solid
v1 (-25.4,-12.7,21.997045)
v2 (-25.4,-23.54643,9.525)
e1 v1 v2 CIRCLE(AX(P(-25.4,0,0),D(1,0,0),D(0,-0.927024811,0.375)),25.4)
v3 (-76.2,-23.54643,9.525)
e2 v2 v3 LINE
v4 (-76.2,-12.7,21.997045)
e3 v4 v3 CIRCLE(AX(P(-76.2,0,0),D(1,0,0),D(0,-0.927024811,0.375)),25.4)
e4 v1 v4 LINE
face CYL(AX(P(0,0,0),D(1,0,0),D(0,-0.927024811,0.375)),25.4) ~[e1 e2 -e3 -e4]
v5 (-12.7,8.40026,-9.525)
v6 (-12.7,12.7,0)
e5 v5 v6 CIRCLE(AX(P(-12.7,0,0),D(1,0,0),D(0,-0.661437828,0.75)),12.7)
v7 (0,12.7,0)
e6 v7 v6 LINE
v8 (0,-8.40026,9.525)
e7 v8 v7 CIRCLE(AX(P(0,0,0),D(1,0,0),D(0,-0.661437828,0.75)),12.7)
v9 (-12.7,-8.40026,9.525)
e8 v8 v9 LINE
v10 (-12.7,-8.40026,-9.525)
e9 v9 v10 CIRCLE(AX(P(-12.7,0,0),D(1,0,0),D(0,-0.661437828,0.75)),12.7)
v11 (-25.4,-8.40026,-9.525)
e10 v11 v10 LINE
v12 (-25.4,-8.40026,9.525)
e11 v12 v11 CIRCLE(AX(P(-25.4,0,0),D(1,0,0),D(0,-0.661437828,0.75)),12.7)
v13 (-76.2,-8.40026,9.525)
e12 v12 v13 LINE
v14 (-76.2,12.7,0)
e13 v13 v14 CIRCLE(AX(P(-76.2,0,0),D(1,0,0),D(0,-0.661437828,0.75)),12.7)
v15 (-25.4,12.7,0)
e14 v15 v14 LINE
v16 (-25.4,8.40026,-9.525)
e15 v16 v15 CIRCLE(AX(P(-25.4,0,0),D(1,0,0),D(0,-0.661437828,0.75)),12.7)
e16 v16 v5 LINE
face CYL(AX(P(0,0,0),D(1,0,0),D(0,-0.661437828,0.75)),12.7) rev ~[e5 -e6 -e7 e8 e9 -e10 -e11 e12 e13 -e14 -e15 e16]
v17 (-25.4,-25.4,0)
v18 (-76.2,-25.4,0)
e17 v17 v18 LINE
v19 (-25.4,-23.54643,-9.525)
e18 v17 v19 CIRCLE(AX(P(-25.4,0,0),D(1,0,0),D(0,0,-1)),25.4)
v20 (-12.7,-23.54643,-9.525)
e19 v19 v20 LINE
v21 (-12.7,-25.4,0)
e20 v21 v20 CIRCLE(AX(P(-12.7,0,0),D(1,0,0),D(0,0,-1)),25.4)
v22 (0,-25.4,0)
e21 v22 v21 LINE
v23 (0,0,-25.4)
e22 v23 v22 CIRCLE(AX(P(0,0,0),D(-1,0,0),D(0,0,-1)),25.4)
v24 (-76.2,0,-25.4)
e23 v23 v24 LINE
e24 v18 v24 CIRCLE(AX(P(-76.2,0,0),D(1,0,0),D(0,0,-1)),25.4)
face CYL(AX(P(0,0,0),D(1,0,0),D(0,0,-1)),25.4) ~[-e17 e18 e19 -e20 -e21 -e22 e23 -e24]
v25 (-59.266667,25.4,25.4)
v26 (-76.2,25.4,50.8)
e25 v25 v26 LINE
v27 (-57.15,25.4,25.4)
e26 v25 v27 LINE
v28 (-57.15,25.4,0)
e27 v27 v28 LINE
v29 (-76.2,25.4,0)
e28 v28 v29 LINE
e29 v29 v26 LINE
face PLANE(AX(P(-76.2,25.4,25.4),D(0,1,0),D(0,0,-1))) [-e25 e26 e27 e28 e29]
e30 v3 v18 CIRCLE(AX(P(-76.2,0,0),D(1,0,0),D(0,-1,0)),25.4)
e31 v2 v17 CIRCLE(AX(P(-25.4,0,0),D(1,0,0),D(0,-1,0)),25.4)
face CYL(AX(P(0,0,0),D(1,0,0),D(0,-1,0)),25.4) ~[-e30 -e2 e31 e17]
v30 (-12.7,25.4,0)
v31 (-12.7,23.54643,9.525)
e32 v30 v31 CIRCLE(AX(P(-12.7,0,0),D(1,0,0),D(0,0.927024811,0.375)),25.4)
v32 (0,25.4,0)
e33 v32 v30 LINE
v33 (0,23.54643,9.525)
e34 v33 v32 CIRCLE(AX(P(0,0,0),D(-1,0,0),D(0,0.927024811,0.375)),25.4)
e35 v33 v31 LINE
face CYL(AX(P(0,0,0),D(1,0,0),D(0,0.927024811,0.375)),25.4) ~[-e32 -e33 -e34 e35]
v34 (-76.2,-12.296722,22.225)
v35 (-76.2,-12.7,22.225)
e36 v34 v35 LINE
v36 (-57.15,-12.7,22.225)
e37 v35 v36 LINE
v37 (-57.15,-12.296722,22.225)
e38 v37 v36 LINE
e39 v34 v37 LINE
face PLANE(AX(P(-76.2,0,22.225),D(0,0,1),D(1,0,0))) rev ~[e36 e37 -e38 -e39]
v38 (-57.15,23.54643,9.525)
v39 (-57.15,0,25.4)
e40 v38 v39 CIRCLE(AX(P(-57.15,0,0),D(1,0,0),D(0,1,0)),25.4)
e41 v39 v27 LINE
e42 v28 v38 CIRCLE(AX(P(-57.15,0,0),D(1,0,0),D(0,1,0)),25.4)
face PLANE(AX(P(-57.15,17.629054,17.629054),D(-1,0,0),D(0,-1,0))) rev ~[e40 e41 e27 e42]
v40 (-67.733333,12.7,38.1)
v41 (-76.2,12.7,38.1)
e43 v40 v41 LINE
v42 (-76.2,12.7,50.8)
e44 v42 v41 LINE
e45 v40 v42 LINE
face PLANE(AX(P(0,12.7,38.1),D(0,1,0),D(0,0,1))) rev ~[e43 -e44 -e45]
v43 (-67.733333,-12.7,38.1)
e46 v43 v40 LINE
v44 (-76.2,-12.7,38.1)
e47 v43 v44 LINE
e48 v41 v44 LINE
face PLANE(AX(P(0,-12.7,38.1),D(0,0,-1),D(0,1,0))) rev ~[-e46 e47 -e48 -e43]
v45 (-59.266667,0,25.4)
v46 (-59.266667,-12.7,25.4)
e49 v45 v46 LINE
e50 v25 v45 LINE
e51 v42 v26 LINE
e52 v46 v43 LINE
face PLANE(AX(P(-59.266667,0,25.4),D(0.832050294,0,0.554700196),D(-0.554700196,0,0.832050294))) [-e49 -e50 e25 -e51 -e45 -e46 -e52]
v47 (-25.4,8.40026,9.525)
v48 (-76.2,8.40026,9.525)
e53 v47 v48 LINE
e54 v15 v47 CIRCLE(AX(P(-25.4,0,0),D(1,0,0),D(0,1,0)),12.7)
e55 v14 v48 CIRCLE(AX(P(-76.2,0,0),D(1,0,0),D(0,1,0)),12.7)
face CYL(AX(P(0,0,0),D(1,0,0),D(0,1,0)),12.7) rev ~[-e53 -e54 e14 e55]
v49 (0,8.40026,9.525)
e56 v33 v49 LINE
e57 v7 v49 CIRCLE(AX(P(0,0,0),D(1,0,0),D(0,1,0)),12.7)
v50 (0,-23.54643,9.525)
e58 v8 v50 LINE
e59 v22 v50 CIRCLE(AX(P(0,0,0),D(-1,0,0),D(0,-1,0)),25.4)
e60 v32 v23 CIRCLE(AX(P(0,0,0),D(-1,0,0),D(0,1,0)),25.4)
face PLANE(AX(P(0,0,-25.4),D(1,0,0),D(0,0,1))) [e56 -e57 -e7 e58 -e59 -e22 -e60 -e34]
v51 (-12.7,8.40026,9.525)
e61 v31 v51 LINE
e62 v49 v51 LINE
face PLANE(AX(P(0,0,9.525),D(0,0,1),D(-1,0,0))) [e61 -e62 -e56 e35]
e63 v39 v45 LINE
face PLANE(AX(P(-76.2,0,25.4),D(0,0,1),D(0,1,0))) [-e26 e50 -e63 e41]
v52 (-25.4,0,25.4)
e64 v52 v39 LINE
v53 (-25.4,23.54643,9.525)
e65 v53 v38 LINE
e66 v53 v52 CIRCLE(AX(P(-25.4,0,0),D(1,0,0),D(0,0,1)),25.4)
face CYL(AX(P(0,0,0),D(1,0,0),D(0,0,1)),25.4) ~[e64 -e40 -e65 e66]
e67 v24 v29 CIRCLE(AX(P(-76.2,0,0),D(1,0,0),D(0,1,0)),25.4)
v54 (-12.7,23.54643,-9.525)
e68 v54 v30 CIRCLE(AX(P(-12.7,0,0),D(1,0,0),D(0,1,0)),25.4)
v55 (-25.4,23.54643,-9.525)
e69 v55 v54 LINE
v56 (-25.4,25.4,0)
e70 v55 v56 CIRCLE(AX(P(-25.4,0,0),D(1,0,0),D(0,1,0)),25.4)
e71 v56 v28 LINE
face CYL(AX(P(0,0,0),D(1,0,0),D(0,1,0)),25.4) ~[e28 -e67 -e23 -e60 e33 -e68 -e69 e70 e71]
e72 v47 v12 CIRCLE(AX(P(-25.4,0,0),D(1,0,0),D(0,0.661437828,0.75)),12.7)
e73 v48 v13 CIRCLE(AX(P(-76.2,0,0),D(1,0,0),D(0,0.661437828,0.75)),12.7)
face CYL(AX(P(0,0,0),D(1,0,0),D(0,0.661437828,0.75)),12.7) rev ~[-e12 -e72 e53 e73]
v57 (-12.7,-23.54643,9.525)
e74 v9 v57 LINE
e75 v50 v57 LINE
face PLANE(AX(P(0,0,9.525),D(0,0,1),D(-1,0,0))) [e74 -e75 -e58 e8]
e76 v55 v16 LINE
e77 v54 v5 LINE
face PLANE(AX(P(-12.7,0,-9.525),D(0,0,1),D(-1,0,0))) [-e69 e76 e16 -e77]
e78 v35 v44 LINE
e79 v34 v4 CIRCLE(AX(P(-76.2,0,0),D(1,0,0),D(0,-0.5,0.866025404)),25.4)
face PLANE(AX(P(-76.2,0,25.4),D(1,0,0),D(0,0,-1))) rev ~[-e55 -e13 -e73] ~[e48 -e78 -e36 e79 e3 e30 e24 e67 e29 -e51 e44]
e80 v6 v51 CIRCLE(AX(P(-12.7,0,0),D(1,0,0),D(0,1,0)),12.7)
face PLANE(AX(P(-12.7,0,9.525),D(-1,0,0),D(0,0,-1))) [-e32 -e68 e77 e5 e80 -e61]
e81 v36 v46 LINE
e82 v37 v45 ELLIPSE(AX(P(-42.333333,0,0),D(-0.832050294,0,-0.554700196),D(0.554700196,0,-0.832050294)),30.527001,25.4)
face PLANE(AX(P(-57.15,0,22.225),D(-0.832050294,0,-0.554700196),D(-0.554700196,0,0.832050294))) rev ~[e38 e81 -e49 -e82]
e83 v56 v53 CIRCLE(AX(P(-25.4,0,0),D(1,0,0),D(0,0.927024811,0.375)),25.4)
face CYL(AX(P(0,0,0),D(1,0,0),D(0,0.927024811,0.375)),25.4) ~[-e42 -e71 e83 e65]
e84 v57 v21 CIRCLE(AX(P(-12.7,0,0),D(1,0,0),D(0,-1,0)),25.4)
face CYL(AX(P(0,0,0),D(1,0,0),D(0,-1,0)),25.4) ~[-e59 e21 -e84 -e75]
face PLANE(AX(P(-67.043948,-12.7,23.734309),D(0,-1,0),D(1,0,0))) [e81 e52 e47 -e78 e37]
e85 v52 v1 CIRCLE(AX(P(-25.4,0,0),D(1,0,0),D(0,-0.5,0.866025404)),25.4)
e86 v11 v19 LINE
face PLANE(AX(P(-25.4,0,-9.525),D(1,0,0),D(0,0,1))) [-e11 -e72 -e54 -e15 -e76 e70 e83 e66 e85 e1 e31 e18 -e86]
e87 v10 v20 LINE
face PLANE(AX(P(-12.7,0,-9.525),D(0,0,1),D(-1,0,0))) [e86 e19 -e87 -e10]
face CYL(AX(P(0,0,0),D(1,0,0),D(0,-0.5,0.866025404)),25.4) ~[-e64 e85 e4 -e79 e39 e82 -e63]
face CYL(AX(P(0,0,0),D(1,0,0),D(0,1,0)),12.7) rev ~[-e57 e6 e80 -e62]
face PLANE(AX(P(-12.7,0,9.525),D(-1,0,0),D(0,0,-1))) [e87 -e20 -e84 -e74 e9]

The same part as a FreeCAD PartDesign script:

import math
import FreeCAD as App
import Part
import Sketcher
Q = App.Units.Quantity

doc = App.newDocument("Part")
body = doc.addObject("PartDesign::Body", "Body")
body.AllowCompound = True

# Sketch on XZ plane
sketch1 = doc.addObject("Sketcher::SketchObject", "Sketch")
body.addObject(sketch1)
sketch1.AttachmentSupport = (doc.XZ_Plane, [""])
sketch1.MapMode = "FlatFace"
sketch1.addGeometry([
    Part.LineSegment(App.Vector(0, -25.4, 0), App.Vector(0, 9.525, 0)),  # 0
    Part.LineSegment(App.Vector(0, 9.525, 0), App.Vector(-12.7, 9.525, 0)),  # 1
    Part.LineSegment(App.Vector(-12.7, 9.525, 0), App.Vector(-12.7, -9.525, 0)),  # 2
    Part.LineSegment(App.Vector(-12.7, -9.525, 0), App.Vector(-25.4, -9.525, 0)),  # 3
    Part.LineSegment(App.Vector(-25.4, -9.525, 0), App.Vector(-25.4, 25.4, 0)),  # 4
    Part.LineSegment(App.Vector(-25.4, 25.4, 0), App.Vector(-59.266667, 25.4, 0)),  # 5
    Part.LineSegment(App.Vector(-59.266667, 25.4, 0), App.Vector(-76.2, 50.8, 0)),  # 6
    Part.LineSegment(App.Vector(-76.2, 50.8, 0), App.Vector(-76.2, -25.4, 0)),  # 7
    Part.LineSegment(App.Vector(-76.2, -25.4, 0), App.Vector(0, -25.4, 0)),  # 8
], False)
sketch1.addConstraint([
    Sketcher.Constraint("Coincident", 0, 2, 1, 1),
    Sketcher.Constraint("Coincident", 1, 2, 2, 1),
    Sketcher.Constraint("Coincident", 2, 2, 3, 1),
    Sketcher.Constraint("Coincident", 3, 2, 4, 1),
    Sketcher.Constraint("Coincident", 4, 2, 5, 1),
    Sketcher.Constraint("Coincident", 5, 2, 6, 1),
    Sketcher.Constraint("Coincident", 6, 2, 7, 1),
    Sketcher.Constraint("Coincident", 7, 2, 8, 1),
    Sketcher.Constraint("Coincident", 8, 2, 0, 1),
    Sketcher.Constraint("Vertical", 0),
    Sketcher.Constraint("Horizontal", 1),
    Sketcher.Constraint("Vertical", 2),
    Sketcher.Constraint("Horizontal", 3),
    Sketcher.Constraint("Vertical", 4),
    Sketcher.Constraint("Horizontal", 5),
    Sketcher.Constraint("Vertical", 7),
    Sketcher.Constraint("Horizontal", 8),
    Sketcher.Constraint("PointOnObject", 0, 2, -2),
    Sketcher.Constraint("Equal", 1, 3),
    Sketcher.Constraint("Equal", 0, 4),
    Sketcher.Constraint("Equal", 8, 7),
    Sketcher.Constraint("DistanceX", 8, 1, 8, 2, Q("3 in")),
    Sketcher.Constraint("DistanceX", 1, 2, 1, 1, Q("0.5 in")),
    Sketcher.Constraint("DistanceY", -1, 1, 4, 2, Q("1 in")),
    Sketcher.Constraint("DistanceY", -1, 1, 6, 2, Q("2 in")),
    Sketcher.Constraint("DistanceY", 2, 2, 2, 1, Q("0.75 in")),
    Sketcher.Constraint("Distance", 6, 30.527001),
])
pad1 = doc.addObject("PartDesign::Pad", "Pad")
body.addObject(pad1)
pad1.Profile = sketch1
pad1.Length = Q("2 in")
pad1.Midplane = True

# Sketch on YZ plane
sketch2 = doc.addObject("Sketcher::SketchObject", "Sketch001")
body.addObject(sketch2)
sketch2.AttachmentSupport = (doc.YZ_Plane, [""])
sketch2.MapMode = "FlatFace"
sketch2.addGeometry([
    Part.ArcOfCircle(Part.Circle(App.Vector(0, 0, 0), App.Vector(0, 0, 1), 12.7), math.radians(131.409622), math.radians(360)),
    Part.ArcOfCircle(Part.Circle(App.Vector(0, 0, 0), App.Vector(0, 0, 1), 12.7), math.radians(0), math.radians(48.590378)),
    Part.ArcOfCircle(Part.Circle(App.Vector(0, 0, 0), App.Vector(0, 0, 1), 12.7), math.radians(48.590378), math.radians(131.409622)),
], False)
sketch2.addConstraint([
    Sketcher.Constraint("Tangent", 0, 2, 1, 1),
    Sketcher.Constraint("Tangent", 1, 2, 2, 1),
    Sketcher.Constraint("Tangent", 2, 2, 0, 1),
    Sketcher.Constraint("Coincident", 0, 3, -1, 1),
    Sketcher.Constraint("PointOnObject", 0, 2, -1),
    Sketcher.Constraint("Horizontal", 1, 2, 2, 2),
    Sketcher.Constraint("Radius", 0, Q("0.5 in")),
    Sketcher.Constraint("DistanceY", -1, 1, 1, 2, Q("0.375 in")),
])
pocket1 = doc.addObject("PartDesign::Pocket", "Pocket")
body.addObject(pocket1)
pocket1.Profile = sketch2
pocket1.Length = Q("10 in")

# Sketch on YZ plane
sketch3 = doc.addObject("Sketcher::SketchObject", "Sketch002")
body.addObject(sketch3)
sketch3.AttachmentSupport = (doc.YZ_Plane, [""])
sketch3.MapMode = "FlatFace"
sketch3.addGeometry([
    Part.ArcOfCircle(Part.Circle(App.Vector(0, 0, 0), App.Vector(0, 0, 1), 25.4), math.radians(90), math.radians(120)),  # 0
    Part.LineSegment(App.Vector(0, 25.4, 0), App.Vector(-25.4, 25.4, 0)),  # 1
    Part.LineSegment(App.Vector(-25.4, 25.4, 0), App.Vector(-25.4, 0, 0)),  # 2
    Part.ArcOfCircle(Part.Circle(App.Vector(0, 0, 0), App.Vector(0, 0, 1), 25.4), math.radians(157.975687), math.radians(180)),  # 3
    Part.ArcOfCircle(Part.Circle(App.Vector(0, 0, 0), App.Vector(0, 0, 1), 25.4), math.radians(120), math.radians(157.975687)),  # 4
], False)
sketch3.addConstraint([
    Sketcher.Constraint("Tangent", 0, 1, 1, 1),
    Sketcher.Constraint("Coincident", 1, 2, 2, 1),
    Sketcher.Constraint("Tangent", 2, 2, 3, 2),
    Sketcher.Constraint("Tangent", 3, 1, 4, 2),
    Sketcher.Constraint("Tangent", 4, 1, 0, 2),
    Sketcher.Constraint("Horizontal", 1),
    Sketcher.Constraint("Vertical", 2),
    Sketcher.Constraint("Coincident", 0, 3, -1, 1),
    Sketcher.Constraint("Coincident", 3, 3, -1, 1),
    Sketcher.Constraint("Radius", 0, Q("1 in")),
    Sketcher.Constraint("DistanceX", 4, 1, -1, 1, Q("0.5 in")),
    Sketcher.Constraint("DistanceY", -1, 1, 3, 1, Q("0.375 in")),
])
pocket2 = doc.addObject("PartDesign::Pocket", "Pocket001")
body.addObject(pocket2)
pocket2.Profile = sketch3
pocket2.Length = Q("4.15 in")

# Sketch on YZ plane
sketch4 = doc.addObject("Sketcher::SketchObject", "Sketch003")
body.addObject(sketch4)
sketch4.AttachmentSupport = (doc.YZ_Plane, [""])
sketch4.MapMode = "FlatFace"
sketch4.addGeometry([
    Part.ArcOfCircle(Part.Circle(App.Vector(0, 0, 0), App.Vector(0, 0, 1), 25.4), math.radians(22.024313), math.radians(90)),
    Part.ArcOfCircle(Part.Circle(App.Vector(0, 0, 0), App.Vector(0, 0, 1), 25.4), math.radians(0), math.radians(22.024313)),
    Part.LineSegment(App.Vector(25.4, 0, 0), App.Vector(25.4, 25.4, 0)),
    Part.LineSegment(App.Vector(25.4, 25.4, 0), App.Vector(0, 25.4, 0)),
], False)
sketch4.addConstraint([
    Sketcher.Constraint("Tangent", 0, 1, 1, 2),
    Sketcher.Constraint("Tangent", 1, 1, 2, 1),
    Sketcher.Constraint("Coincident", 2, 2, 3, 1),
    Sketcher.Constraint("Tangent", 3, 2, 0, 2),
    Sketcher.Constraint("Vertical", 2),
    Sketcher.Constraint("Horizontal", 3),
    Sketcher.Constraint("Coincident", 0, 3, -1, 1),
    Sketcher.Constraint("Equal", 0, 1),
    Sketcher.Constraint("Radius", 0, Q("1 in")),
    Sketcher.Constraint("DistanceY", -1, 1, 0, 1, Q("0.375 in")),
])
pocket3 = doc.addObject("PartDesign::Pocket", "Pocket002")
body.addObject(pocket3)
pocket3.Profile = sketch4
pocket3.Length = Q("15 in")

# Sketch on YZ plane
sketch5 = doc.addObject("Sketcher::SketchObject", "Sketch004")
body.addObject(sketch5)
sketch5.AttachmentSupport = (doc.YZ_Plane, [""])
sketch5.MapMode = "FlatFace"
sketch5.addGeometry([
    Part.LineSegment(App.Vector(-25.4, 25.4, 0), App.Vector(-12.7, 25.4, 0)),  # 0
    Part.LineSegment(App.Vector(-12.7, 25.4, 0), App.Vector(-12.7, 38.1, 0)),  # 1
    Part.LineSegment(App.Vector(-12.7, 38.1, 0), App.Vector(12.7, 38.1, 0)),  # 2
    Part.LineSegment(App.Vector(12.7, 38.1, 0), App.Vector(12.7, 50.8, 0)),  # 3
    Part.LineSegment(App.Vector(12.7, 50.8, 0), App.Vector(-25.4, 50.8, 0)),  # 4
    Part.LineSegment(App.Vector(-25.4, 50.8, 0), App.Vector(-25.4, 25.4, 0)),  # 5
], False)
sketch5.addConstraint([
    Sketcher.Constraint("Coincident", 0, 2, 1, 1),
    Sketcher.Constraint("Coincident", 1, 2, 2, 1),
    Sketcher.Constraint("Coincident", 2, 2, 3, 1),
    Sketcher.Constraint("Coincident", 3, 2, 4, 1),
    Sketcher.Constraint("Coincident", 4, 2, 5, 1),
    Sketcher.Constraint("Coincident", 5, 2, 0, 1),
    Sketcher.Constraint("Horizontal", 0),
    Sketcher.Constraint("Vertical", 1),
    Sketcher.Constraint("Horizontal", 2),
    Sketcher.Constraint("Vertical", 3),
    Sketcher.Constraint("Horizontal", 4),
    Sketcher.Constraint("Vertical", 5),
    Sketcher.Constraint("Equal", 0, 1),
    Sketcher.Constraint("Equal", 1, 3),
    Sketcher.Constraint("Equal", 2, 5),
    Sketcher.Constraint("DistanceX", 2, 1, 2, 2, Q("1 in")),
    Sketcher.Constraint("DistanceY", -1, 1, 0, 2, Q("1 in")),
    Sketcher.Constraint("DistanceX", 4, 2, -1, 1, Q("1 in")),
])
pocket4 = doc.addObject("PartDesign::Pocket", "Pocket003")
body.addObject(pocket4)
pocket4.Profile = sketch5
pocket4.Length = Q("5 in")

# Sketch on YZ plane
sketch6 = doc.addObject("Sketcher::SketchObject", "Sketch005")
body.addObject(sketch6)
sketch6.AttachmentSupport = (doc.YZ_Plane, [""])
sketch6.MapMode = "FlatFace"
sketch6.AttachmentOffset = App.Placement(App.Vector(0, 0, -3 * 25.4), App.Rotation())
sketch6.addGeometry([
    Part.LineSegment(App.Vector(0, 25.4, 0), App.Vector(25.4, 25.4, 0)),
    Part.LineSegment(App.Vector(25.4, 25.4, 0), App.Vector(25.4, 0, 0)),
    Part.ArcOfCircle(Part.Circle(App.Vector(0, 0, 0), App.Vector(0, 0, 1), 25.4), math.radians(0), math.radians(90)),
], False)
sketch6.addConstraint([
    Sketcher.Constraint("Coincident", 0, 2, 1, 1),
    Sketcher.Constraint("Tangent", 1, 2, 2, 1),
    Sketcher.Constraint("Tangent", 2, 2, 0, 1),
    Sketcher.Constraint("Horizontal", 0),
    Sketcher.Constraint("Vertical", 1),
    Sketcher.Constraint("Coincident", 2, 3, -1, 1),
    Sketcher.Constraint("Radius", 2, Q("1 in")),
])
pad2 = doc.addObject("PartDesign::Pad", "Pad001")
body.addObject(pad2)
pad2.Profile = sketch6
pad2.Length = Q("0.75 in")

# Sketch on XZ plane
sketch7 = doc.addObject("Sketcher::SketchObject", "Sketch006")
body.addObject(sketch7)
sketch7.AttachmentSupport = (doc.XZ_Plane, [""])
sketch7.MapMode = "FlatFace"
sketch7.addGeometry([
    Part.LineSegment(App.Vector(-76.2, 25.4, 0), App.Vector(-76.2, 22.225, 0)),
    Part.LineSegment(App.Vector(-76.2, 22.225, 0), App.Vector(-57.15, 22.225, 0)),
    Part.LineSegment(App.Vector(-57.15, 22.225, 0), App.Vector(-59.266667, 25.4, 0)),
    Part.LineSegment(App.Vector(-59.266667, 25.4, 0), App.Vector(-76.2, 25.4, 0)),
], False)
sketch7.addConstraint([
    Sketcher.Constraint("Coincident", 0, 2, 1, 1),
    Sketcher.Constraint("Coincident", 1, 2, 2, 1),
    Sketcher.Constraint("Coincident", 2, 2, 3, 1),
    Sketcher.Constraint("Coincident", 3, 2, 0, 1),
    Sketcher.Constraint("Vertical", 0),
    Sketcher.Constraint("Horizontal", 1),
    Sketcher.Constraint("Horizontal", 3),
    Sketcher.Constraint("DistanceX", 0, 2, -1, 1, Q("3 in")),
    Sketcher.Constraint("DistanceY", -1, 1, 2, 2, Q("1 in")),
    Sketcher.Constraint("DistanceX", 1, 1, 1, 2, Q("0.75 in")),
    Sketcher.Constraint("DistanceY", 0, 2, 0, 1, Q("0.125 in")),
    Sketcher.Constraint("DistanceX", 3, 2, 3, 1, 16.933333),
])
pad3 = doc.addObject("PartDesign::Pad", "Pad002")
body.addObject(pad3)
pad3.Profile = sketch7
pad3.Length = Q("0.5 in")

# Sketch on YZ plane
sketch8 = doc.addObject("Sketcher::SketchObject", "Sketch007")
body.addObject(sketch8)
sketch8.AttachmentSupport = (doc.YZ_Plane, [""])
sketch8.MapMode = "FlatFace"
sketch8.addGeometry([
    Part.ArcOfCircle(Part.Circle(App.Vector(0, 0, 0), App.Vector(0, 0, 1), 25.4), math.radians(180), math.radians(270)),  # 0
    Part.LineSegment(App.Vector(-25.4, 0, 0), App.Vector(-25.4, -25.4, 0)),  # 1
    Part.LineSegment(App.Vector(-25.4, -25.4, 0), App.Vector(0, -25.4, 0)),  # 2
    Part.LineSegment(App.Vector(25.4, -25.4, 0), App.Vector(25.4, 0, 0)),  # 3
    Part.ArcOfCircle(Part.Circle(App.Vector(0, 0, 0), App.Vector(0, 0, 1), 25.4), math.radians(-90), math.radians(0)),  # 4
    Part.LineSegment(App.Vector(0, -25.4, 0), App.Vector(25.4, -25.4, 0)),  # 5
], False)
sketch8.addConstraint([
    Sketcher.Constraint("Tangent", 0, 1, 1, 1),
    Sketcher.Constraint("Coincident", 1, 2, 2, 1),
    Sketcher.Constraint("Tangent", 2, 2, 0, 2),
    Sketcher.Constraint("Tangent", 3, 2, 4, 2),
    Sketcher.Constraint("Tangent", 4, 1, 5, 1),
    Sketcher.Constraint("Coincident", 5, 2, 3, 1),
    Sketcher.Constraint("Vertical", 1),
    Sketcher.Constraint("Horizontal", 2),
    Sketcher.Constraint("Vertical", 3),
    Sketcher.Constraint("Horizontal", 5),
    Sketcher.Constraint("Coincident", 0, 3, -1, 1),
    Sketcher.Constraint("Coincident", 4, 3, -1, 1),
    Sketcher.Constraint("Equal", 0, 4),
    Sketcher.Constraint("Radius", 0, Q("1 in")),
])
pocket5 = doc.addObject("PartDesign::Pocket", "Pocket004")
body.addObject(pocket5)
pocket5.Profile = sketch8
pocket5.Length = Q("10 in")

doc.recompute()
